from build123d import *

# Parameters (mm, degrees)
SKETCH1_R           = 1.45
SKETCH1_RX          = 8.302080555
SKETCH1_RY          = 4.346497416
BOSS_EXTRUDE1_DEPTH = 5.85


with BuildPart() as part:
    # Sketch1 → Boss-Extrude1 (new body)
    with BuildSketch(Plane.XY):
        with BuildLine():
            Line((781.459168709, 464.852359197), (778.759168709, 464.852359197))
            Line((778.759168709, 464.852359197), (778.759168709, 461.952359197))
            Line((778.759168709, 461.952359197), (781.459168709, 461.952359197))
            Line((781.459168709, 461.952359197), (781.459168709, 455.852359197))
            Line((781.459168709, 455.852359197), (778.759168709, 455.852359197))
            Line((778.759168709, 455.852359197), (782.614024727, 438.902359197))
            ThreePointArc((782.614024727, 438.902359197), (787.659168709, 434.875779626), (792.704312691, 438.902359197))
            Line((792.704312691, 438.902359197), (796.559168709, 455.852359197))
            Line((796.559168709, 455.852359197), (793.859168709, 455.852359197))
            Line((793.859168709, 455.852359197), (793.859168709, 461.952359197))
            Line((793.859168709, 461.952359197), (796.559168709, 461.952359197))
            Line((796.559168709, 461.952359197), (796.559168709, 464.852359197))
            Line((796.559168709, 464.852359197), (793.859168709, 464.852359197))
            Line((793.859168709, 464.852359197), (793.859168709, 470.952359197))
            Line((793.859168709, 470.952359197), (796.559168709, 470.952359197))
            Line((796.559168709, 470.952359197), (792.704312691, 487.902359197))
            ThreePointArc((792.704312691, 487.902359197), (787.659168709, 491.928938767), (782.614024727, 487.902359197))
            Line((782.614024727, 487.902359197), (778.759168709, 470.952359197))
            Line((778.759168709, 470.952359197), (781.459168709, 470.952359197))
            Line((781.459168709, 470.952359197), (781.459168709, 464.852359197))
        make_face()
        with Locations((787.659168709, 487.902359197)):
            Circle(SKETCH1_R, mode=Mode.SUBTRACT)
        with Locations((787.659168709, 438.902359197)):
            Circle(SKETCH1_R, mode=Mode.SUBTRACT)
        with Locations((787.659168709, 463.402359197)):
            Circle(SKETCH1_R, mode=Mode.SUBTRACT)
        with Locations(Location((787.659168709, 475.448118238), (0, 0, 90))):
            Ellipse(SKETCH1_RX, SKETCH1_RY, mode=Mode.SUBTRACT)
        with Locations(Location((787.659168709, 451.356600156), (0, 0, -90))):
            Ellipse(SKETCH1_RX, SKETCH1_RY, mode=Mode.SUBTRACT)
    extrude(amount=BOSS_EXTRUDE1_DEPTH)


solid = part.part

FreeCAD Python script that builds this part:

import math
import FreeCAD as App
import Part
import Sketcher

V = App.Vector

doc = App.newDocument("Part")
body = doc.addObject("PartDesign::Body", "Body")

# Sketch on XY plane
sketch1 = body.newObject("Sketcher::SketchObject", "Sketch")
sketch1.AttachmentSupport = (doc.getObject("XY_Plane"), [""])
sketch1.MapMode = "FlatFace"
sketch1.addGeometry([
    Part.LineSegment(V(781.459169, 464.852359, 0), V(778.759169, 464.852359, 0)),  # 0
    Part.LineSegment(V(778.759169, 464.852359, 0), V(778.759169, 461.952359, 0)),  # 1
    Part.LineSegment(V(778.759169, 461.952359, 0), V(781.459169, 461.952359, 0)),  # 2
    Part.LineSegment(V(781.459169, 461.952359, 0), V(781.459169, 455.852359, 0)),  # 3
    Part.LineSegment(V(781.459169, 455.852359, 0), V(778.759169, 455.852359, 0)),  # 4
    Part.LineSegment(V(778.759169, 455.852359, 0), V(782.614025, 438.902359, 0)),  # 5
    Part.ArcOfCircle(Part.Circle(V(787.659169, 440.049752, 0), V(0, 0, 1), 5.173972), math.radians(-167.187431), math.radians(-12.812569)),  # 6
    Part.LineSegment(V(792.704313, 438.902359, 0), V(796.559169, 455.852359, 0)),  # 7
    Part.LineSegment(V(796.559169, 455.852359, 0), V(793.859169, 455.852359, 0)),  # 8
    Part.LineSegment(V(793.859169, 455.852359, 0), V(793.859169, 461.952359, 0)),  # 9
    Part.LineSegment(V(793.859169, 461.952359, 0), V(796.559169, 461.952359, 0)),  # 10
    Part.LineSegment(V(796.559169, 461.952359, 0), V(796.559169, 464.852359, 0)),  # 11
    Part.LineSegment(V(796.559169, 464.852359, 0), V(793.859169, 464.852359, 0)),  # 12
    Part.LineSegment(V(793.859169, 464.852359, 0), V(793.859169, 470.952359, 0)),  # 13
    Part.LineSegment(V(793.859169, 470.952359, 0), V(796.559169, 470.952359, 0)),  # 14
    Part.LineSegment(V(796.559169, 470.952359, 0), V(792.704313, 487.902359, 0)),  # 15
    Part.ArcOfCircle(Part.Circle(V(787.659169, 486.754967, 0), V(0, 0, 1), 5.173972), math.radians(12.812569), math.radians(167.187431)),  # 16
    Part.LineSegment(V(782.614025, 487.902359, 0), V(778.759169, 470.952359, 0)),  # 17
    Part.LineSegment(V(778.759169, 470.952359, 0), V(781.459169, 470.952359, 0)),  # 18
    Part.LineSegment(V(781.459169, 470.952359, 0), V(781.459169, 464.852359, 0)),  # 19
    Part.Circle(V(787.659169, 438.902359, 0), V(0, 0, 1), 1.45),  # 20
    Part.Ellipse(V(787.659169, 443.05452, 0), V(792.005666, 451.3566, 0), V(787.659169, 451.3566, 0)),  # 21
    Part.Circle(V(787.659169, 463.402359, 0), V(0, 0, 1), 1.45),  # 22
    Part.Ellipse(V(787.659169, 483.750199, 0), V(783.312671, 475.448118, 0), V(787.659169, 475.448118, 0)),  # 23
    Part.Circle(V(787.659169, 487.902359, 0), V(0, 0, 1), 1.45),  # 24
], False)
sketch1.addConstraint([
    Sketcher.Constraint("Block", 21),
    Sketcher.Constraint("Block", 23),
    Sketcher.Constraint("Coincident", 0, 2, 1, 1),
    Sketcher.Constraint("Coincident", 1, 2, 2, 1),
    Sketcher.Constraint("Coincident", 2, 2, 3, 1),
    Sketcher.Constraint("Coincident", 3, 2, 4, 1),
    Sketcher.Constraint("Coincident", 4, 2, 5, 1),
    Sketcher.Constraint("Tangent", 5, 2, 6, 1),
    Sketcher.Constraint("Tangent", 6, 2, 7, 1),
    Sketcher.Constraint("Coincident", 7, 2, 8, 1),
    Sketcher.Constraint("Coincident", 8, 2, 9, 1),
    Sketcher.Constraint("Coincident", 9, 2, 10, 1),
    Sketcher.Constraint("Coincident", 10, 2, 11, 1),
    Sketcher.Constraint("Coincident", 11, 2, 12, 1),
    Sketcher.Constraint("Coincident", 12, 2, 13, 1),
    Sketcher.Constraint("Coincident", 13, 2, 14, 1),
    Sketcher.Constraint("Coincident", 14, 2, 15, 1),
    Sketcher.Constraint("Tangent", 15, 2, 16, 1),
    Sketcher.Constraint("Tangent", 16, 2, 17, 1),
    Sketcher.Constraint("Coincident", 17, 2, 18, 1),
    Sketcher.Constraint("Coincident", 18, 2, 19, 1),
    Sketcher.Constraint("Coincident", 19, 2, 0, 1),
    Sketcher.Constraint("Horizontal", 0),
    Sketcher.Constraint("Vertical", 1),
    Sketcher.Constraint("Horizontal", 2),
    Sketcher.Constraint("Vertical", 3),
    Sketcher.Constraint("Horizontal", 4),
    Sketcher.Constraint("Horizontal", 8),
    Sketcher.Constraint("Vertical", 9),
    Sketcher.Constraint("Horizontal", 10),
    Sketcher.Constraint("Vertical", 11),
    Sketcher.Constraint("Horizontal", 12),
    Sketcher.Constraint("Vertical", 13),
    Sketcher.Constraint("Horizontal", 14),
    Sketcher.Constraint("Horizontal", 18),
    Sketcher.Constraint("Vertical", 19),
    Sketcher.Constraint("Equal", 6, 16),
    Sketcher.Constraint("Equal", 20, 22),
    Sketcher.Constraint("Equal", 22, 24),
    Sketcher.Constraint("Parallel", 5, 15),
    Sketcher.Constraint("Parallel", 7, 17),
    Sketcher.Constraint("Horizontal", 20, 3, 5, 2),
    Sketcher.Constraint("Horizontal", 5, 2, 6, 2),
    Sketcher.Constraint("Horizontal", 4, 2, 7, 2),
    Sketcher.Constraint("Horizontal", 2, 2, 9, 2),
    Sketcher.Constraint("Horizontal", 0, 2, 11, 2),
    Sketcher.Constraint("Horizontal", 24, 3, 15, 2),
    Sketcher.Constraint("Horizontal", 14, 2, 17, 2),
    Sketcher.Constraint("Vertical", 6, 3, 16, 3),
    Sketcher.Constraint("Vertical", 16, 3, 20, 3),
    Sketcher.Constraint("Vertical", 20, 3, 22, 3),
    Sketcher.Constraint("Vertical", 22, 3, 24, 3),
    Sketcher.Constraint("Vertical", 1, 2, 4, 2),
    Sketcher.Constraint("Vertical", 7, 2, 10, 2),
    Sketcher.Constraint("Vertical", 9, 2, 12, 2),
    Sketcher.Constraint("Vertical", 11, 2, 14, 2),
    Sketcher.Constraint("Vertical", 3, 2, 18, 2),
    Sketcher.Constraint("Equal", 4, 8),
    Sketcher.Constraint("Equal", 9, 13),
    Sketcher.Constraint("Diameter", 20, 2.9),
    Sketcher.Constraint("DistanceX", 0, 2, 0, 1, 2.7),
    Sketcher.Constraint("DistanceY", 1, 2, 1, 1, 2.9),
    Sketcher.Constraint("DistanceY", 3, 2, 3, 1, 6.1),
    Sketcher.Constraint("DistanceY", 20, 3, 24, 3, 49.0),
    Sketcher.Constraint("DistanceY", 20, 3, 22, 3, 24.5),
    Sketcher.Constraint("DistanceX", 0, 2, 22, 3, 8.9),
    Sketcher.Constraint("Radius", 6, 5.173972),
    Sketcher.Constraint("DistanceX", -1, 1, 6, 3, 787.659169),
    Sketcher.Constraint("DistanceY", -1, 1, 6, 3, 440.049752),
])
pad1 = body.newObject("PartDesign::Pad", "Pad")
pad1.Profile = sketch1
pad1.Length = 5.85

doc.recompute()
